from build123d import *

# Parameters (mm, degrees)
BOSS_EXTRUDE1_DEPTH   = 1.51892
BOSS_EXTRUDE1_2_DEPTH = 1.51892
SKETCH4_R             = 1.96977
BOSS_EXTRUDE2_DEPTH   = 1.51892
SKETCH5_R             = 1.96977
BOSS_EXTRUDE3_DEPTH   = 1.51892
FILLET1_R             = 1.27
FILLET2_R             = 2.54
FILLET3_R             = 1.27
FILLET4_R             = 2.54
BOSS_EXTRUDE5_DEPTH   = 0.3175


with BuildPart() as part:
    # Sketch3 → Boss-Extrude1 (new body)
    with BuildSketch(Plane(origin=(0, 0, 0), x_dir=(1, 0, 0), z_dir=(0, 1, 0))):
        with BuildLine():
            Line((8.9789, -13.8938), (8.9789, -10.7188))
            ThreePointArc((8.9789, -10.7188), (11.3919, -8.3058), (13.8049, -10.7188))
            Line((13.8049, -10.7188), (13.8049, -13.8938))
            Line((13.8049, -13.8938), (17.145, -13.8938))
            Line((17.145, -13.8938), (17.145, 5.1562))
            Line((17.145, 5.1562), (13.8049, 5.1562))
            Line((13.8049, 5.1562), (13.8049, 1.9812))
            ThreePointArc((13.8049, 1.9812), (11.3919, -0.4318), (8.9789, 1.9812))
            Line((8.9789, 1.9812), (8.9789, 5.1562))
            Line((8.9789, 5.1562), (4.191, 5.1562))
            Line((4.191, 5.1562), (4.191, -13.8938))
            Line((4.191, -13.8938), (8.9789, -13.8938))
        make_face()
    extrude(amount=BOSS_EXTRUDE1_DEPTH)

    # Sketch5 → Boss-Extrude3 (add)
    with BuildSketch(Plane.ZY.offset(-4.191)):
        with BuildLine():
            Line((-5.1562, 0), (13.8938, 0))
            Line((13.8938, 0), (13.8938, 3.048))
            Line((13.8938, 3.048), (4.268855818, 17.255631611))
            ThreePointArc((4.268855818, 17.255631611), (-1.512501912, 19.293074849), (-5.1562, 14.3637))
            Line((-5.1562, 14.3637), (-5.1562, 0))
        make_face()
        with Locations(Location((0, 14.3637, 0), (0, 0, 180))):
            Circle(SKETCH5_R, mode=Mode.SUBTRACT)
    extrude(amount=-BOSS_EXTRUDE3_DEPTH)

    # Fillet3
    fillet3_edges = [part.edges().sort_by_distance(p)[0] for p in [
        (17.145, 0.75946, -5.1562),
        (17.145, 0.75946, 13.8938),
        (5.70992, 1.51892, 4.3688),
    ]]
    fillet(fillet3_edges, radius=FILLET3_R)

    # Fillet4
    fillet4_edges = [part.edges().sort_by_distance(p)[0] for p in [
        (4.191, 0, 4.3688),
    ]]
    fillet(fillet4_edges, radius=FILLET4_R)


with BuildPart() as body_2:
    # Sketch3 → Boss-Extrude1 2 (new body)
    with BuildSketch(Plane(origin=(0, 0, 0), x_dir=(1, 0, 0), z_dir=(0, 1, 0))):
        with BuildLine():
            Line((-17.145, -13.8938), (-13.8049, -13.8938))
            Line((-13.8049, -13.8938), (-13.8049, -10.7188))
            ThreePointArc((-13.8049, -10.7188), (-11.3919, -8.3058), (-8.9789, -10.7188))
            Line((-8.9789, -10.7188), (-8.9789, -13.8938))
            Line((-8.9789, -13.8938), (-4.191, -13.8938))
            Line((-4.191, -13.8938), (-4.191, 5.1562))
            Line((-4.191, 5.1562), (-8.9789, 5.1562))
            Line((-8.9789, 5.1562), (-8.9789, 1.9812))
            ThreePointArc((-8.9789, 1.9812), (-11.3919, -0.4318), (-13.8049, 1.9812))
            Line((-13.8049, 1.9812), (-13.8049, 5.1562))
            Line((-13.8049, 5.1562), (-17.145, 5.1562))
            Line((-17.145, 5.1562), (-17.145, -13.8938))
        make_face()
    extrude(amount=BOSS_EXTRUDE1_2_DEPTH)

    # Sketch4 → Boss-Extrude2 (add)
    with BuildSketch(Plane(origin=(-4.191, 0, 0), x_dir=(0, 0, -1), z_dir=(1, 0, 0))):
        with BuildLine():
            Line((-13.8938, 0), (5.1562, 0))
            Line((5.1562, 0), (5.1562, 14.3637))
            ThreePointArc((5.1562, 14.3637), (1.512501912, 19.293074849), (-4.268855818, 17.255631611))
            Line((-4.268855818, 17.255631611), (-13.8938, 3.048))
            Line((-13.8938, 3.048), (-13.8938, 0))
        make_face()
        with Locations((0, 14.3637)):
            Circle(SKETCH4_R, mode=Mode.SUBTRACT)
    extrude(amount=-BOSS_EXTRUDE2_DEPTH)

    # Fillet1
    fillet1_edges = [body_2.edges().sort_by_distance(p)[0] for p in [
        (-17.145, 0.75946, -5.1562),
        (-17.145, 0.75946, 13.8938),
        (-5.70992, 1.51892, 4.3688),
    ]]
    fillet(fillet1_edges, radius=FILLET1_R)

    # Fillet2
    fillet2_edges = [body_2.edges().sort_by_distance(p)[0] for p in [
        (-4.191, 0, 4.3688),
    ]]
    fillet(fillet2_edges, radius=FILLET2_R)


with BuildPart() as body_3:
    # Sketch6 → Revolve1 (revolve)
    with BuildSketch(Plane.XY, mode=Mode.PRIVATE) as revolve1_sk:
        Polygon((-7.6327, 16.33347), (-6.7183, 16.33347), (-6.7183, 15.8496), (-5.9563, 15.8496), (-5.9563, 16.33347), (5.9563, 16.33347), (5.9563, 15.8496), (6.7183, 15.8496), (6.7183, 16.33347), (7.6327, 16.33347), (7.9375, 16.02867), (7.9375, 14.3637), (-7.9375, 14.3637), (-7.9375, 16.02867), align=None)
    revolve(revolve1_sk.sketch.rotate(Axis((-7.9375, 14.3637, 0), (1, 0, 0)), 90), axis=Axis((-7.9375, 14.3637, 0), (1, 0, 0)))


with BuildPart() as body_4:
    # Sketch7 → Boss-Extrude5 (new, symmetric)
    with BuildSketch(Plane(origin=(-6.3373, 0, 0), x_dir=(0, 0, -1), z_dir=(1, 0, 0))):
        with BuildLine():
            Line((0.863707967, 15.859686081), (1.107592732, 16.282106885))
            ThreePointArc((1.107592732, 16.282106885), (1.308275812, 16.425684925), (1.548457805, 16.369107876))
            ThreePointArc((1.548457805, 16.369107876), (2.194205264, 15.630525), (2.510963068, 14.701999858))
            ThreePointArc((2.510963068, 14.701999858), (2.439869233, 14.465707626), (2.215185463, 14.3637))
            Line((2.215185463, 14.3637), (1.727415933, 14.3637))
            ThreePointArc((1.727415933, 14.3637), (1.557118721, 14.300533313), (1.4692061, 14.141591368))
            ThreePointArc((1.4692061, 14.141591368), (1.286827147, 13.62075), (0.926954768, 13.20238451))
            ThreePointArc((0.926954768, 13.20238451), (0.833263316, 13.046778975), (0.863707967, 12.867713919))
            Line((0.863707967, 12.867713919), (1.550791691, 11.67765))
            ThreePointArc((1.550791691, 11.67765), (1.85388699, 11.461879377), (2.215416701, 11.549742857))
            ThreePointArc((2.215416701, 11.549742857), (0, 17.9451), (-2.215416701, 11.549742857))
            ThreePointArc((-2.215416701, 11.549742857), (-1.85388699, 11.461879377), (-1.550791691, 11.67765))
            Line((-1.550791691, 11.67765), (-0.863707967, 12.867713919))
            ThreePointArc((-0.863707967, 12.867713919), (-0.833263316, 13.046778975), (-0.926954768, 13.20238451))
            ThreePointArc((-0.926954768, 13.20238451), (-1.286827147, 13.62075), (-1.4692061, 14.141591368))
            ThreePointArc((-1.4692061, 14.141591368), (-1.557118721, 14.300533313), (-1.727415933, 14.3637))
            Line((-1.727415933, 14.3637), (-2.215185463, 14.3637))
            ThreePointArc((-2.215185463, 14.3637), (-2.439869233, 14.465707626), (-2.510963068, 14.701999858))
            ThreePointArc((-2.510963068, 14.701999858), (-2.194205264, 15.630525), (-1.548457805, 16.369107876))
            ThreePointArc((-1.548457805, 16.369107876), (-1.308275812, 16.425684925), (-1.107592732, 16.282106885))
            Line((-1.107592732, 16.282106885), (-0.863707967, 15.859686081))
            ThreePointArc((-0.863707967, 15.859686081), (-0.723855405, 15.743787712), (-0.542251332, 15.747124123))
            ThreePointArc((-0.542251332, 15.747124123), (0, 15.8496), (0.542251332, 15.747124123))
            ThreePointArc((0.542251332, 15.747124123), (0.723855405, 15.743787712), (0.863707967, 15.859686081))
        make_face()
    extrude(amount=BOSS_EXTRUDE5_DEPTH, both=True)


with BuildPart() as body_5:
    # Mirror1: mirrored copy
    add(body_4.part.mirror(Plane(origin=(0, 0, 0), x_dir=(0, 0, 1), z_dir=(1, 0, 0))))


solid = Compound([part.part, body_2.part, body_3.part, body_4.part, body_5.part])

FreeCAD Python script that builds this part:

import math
import FreeCAD as App
import Part
import Sketcher

V = App.Vector
Q = App.Units.Quantity


def edges_at(feature, points):
    """Names of the edges that pass closest to the given points."""
    edges = feature.Shape.Edges
    near = lambda p: min(range(len(edges)), key=lambda i: edges[i].distToShape(Part.Vertex(*p))[0])
    return sorted({f"Edge{near(p) + 1}" for p in points})


def add_polygon(sketch, points):
    """Adds a closed chain of lines whose ends are joined by coincident constraints."""
    first, n = sketch.GeometryCount, len(points)
    for a, b in zip(points, points[1:] + points[:1]):
        sketch.addGeometry(Part.LineSegment(App.Vector(*a, 0), App.Vector(*b, 0)), False)
    for i in range(n):
        sketch.addConstraint(Sketcher.Constraint("Coincident", first + i, 2, first + (i + 1) % n, 1))

doc = App.newDocument("Part")
body = doc.addObject("PartDesign::Body", "Body")

# Sketch on XZ plane
sketch1 = body.newObject("Sketcher::SketchObject", "Sketch")
sketch1.AttachmentSupport = (doc.getObject("XZ_Plane"), [""])
sketch1.MapMode = "FlatFace"
sketch1.addGeometry([
    Part.LineSegment(V(9, 13.9, 0), V(9, 10.7, 0)),  # 0
    Part.ArcOfCircle(Part.Circle(V(11.4, 10.7, 0), V(0, 0, 1), 2.4), math.radians(180), math.radians(360)),  # 1
    Part.LineSegment(V(13.8, 10.7, 0), V(13.8, 13.9, 0)),  # 2
    Part.LineSegment(V(13.8, 13.9, 0), V(17.1, 13.9, 0)),  # 3
    Part.LineSegment(V(17.1, 13.9, 0), V(17.1, -5.2, 0)),  # 4
    Part.LineSegment(V(17.1, -5.2, 0), V(13.8, -5.2, 0)),  # 5
    Part.LineSegment(V(13.8, -5.2, 0), V(13.8, -2, 0)),  # 6
    Part.ArcOfCircle(Part.Circle(V(11.4, -2, 0), V(0, 0, 1), 2.4), math.radians(0), math.radians(180)),  # 7
    Part.LineSegment(V(9, -2, 0), V(9, -5.2, 0)),  # 8
    Part.LineSegment(V(9, -5.2, 0), V(4.2, -5.2, 0)),  # 9
    Part.LineSegment(V(4.2, -5.2, 0), V(4.2, 13.9, 0)),  # 10
    Part.LineSegment(V(4.2, 13.9, 0), V(9, 13.9, 0)),  # 11
], False)
sketch1.addConstraint([
    Sketcher.Constraint("Tangent", 0, 2, 1, 1),
    Sketcher.Constraint("Tangent", 1, 2, 2, 1),
    Sketcher.Constraint("Coincident", 2, 2, 3, 1),
    Sketcher.Constraint("Coincident", 3, 2, 4, 1),
    Sketcher.Constraint("Coincident", 4, 2, 5, 1),
    Sketcher.Constraint("Coincident", 5, 2, 6, 1),
    Sketcher.Constraint("Tangent", 6, 2, 7, 1),
    Sketcher.Constraint("Tangent", 7, 2, 8, 1),
    Sketcher.Constraint("Coincident", 8, 2, 9, 1),
    Sketcher.Constraint("Coincident", 9, 2, 10, 1),
    Sketcher.Constraint("Coincident", 10, 2, 11, 1),
    Sketcher.Constraint("Coincident", 11, 2, 0, 1),
    Sketcher.Constraint("Vertical", 0),
    Sketcher.Constraint("Vertical", 2),
    Sketcher.Constraint("Horizontal", 3),
    Sketcher.Constraint("Vertical", 4),
    Sketcher.Constraint("Horizontal", 5),
    Sketcher.Constraint("Vertical", 6),
    Sketcher.Constraint("Vertical", 8),
    Sketcher.Constraint("Horizontal", 9),
    Sketcher.Constraint("Vertical", 10),
    Sketcher.Constraint("Horizontal", 11),
    Sketcher.Constraint("Equal", 1, 7),
    Sketcher.Constraint("Horizontal", 5, 2, 8, 2),
    Sketcher.Constraint("Horizontal", 3, 2, 10, 2),
    Sketcher.Constraint("Vertical", 1, 3, 7, 3),
    Sketcher.Constraint("Equal", 2, 6),
    Sketcher.Constraint("Radius", 1, Q("0.095 in")),
    Sketcher.Constraint("DistanceY", 4, 2, 4, 1, Q("0.75 in")),
    Sketcher.Constraint("DistanceY", 7, 3, 1, 3, Q("0.5 in")),
    Sketcher.Constraint("DistanceX", 10, 2, 3, 2, Q("0.51 in")),
    Sketcher.Constraint("DistanceX", 3, 1, 3, 2, Q("0.1315 in")),
    Sketcher.Constraint("DistanceY", -1, 1, 1, 3, Q("0.422 in")),
    Sketcher.Constraint("DistanceX", -1, 1, 3, 2, Q("0.675 in")),
])
pad1 = body.newObject("PartDesign::Pad", "Pad")
pad1.Profile = sketch1
pad1.Length = Q("0.0598 in")
pad1.Reversed = True

# Sketch on YZ plane
sketch2 = body.newObject("Sketcher::SketchObject", "Sketch001")
sketch2.AttachmentSupport = (doc.getObject("YZ_Plane"), [""])
sketch2.MapMode = "FlatFace"
sketch2.AttachmentOffset = App.Placement(V(0, 0, 0.165 * 25.4), App.Rotation())
sketch2.addGeometry([
    Part.LineSegment(V(0, -5.2, 0), V(0, 13.9, 0)),  # 0
    Part.LineSegment(V(0, 13.9, 0), V(3, 13.9, 0)),  # 1
    Part.LineSegment(V(3, 13.9, 0), V(17.3, 4.3, 0)),  # 2
    Part.ArcOfCircle(Part.Circle(V(14.4, 0, 0), V(0, 0, 1), 5.2), math.radians(-90), math.radians(56)),  # 3
    Part.LineSegment(V(14.4, -5.2, 0), V(0, -5.2, 0)),  # 4
    Part.Circle(V(14.4, 0, 0), V(0, 0, 1), 2),  # 5
], False)
sketch2.addConstraint([
    Sketcher.Constraint("Coincident", 0, 2, 1, 1),
    Sketcher.Constraint("Coincident", 1, 2, 2, 1),
    Sketcher.Constraint("Tangent", 2, 2, 3, 2),
    Sketcher.Constraint("Tangent", 3, 1, 4, 1),
    Sketcher.Constraint("Coincident", 4, 2, 0, 1),
    Sketcher.Constraint("Vertical", 0),
    Sketcher.Constraint("Horizontal", 1),
    Sketcher.Constraint("Horizontal", 4),
    Sketcher.Constraint("Coincident", 5, 3, 3, 3),
    Sketcher.Constraint("PointOnObject", 3, 3, -1),
    Sketcher.Constraint("PointOnObject", 0, 2, -2),
    Sketcher.Constraint("Radius", 3, Q("0.203 in")),
    Sketcher.Constraint("Diameter", 5, Q("0.1551 in")),
    Sketcher.Constraint("DistanceX", 1, 1, 1, 2, Q("0.12 in")),
    Sketcher.Constraint("DistanceY", 0, 1, 0, 2, Q("0.75 in")),
    Sketcher.Constraint("DistanceX", 4, 2, 4, 1, Q("0.5655 in")),
])
pad2 = body.newObject("PartDesign::Pad", "Pad001")
pad2.Profile = sketch2
pad2.Length = Q("0.0598 in")
doc.recompute()

fillet = body.newObject("PartDesign::Fillet", "Fillet")
fillet.Base = (pad2, edges_at(pad2, [(17.145, 0.759, -5.156), (17.145, 0.759, 13.894), (5.71, 1.519, 4.369)]))
fillet.Radius = Q("0.05 in")
doc.recompute()

fillet2 = body.newObject("PartDesign::Fillet", "Fillet001")
fillet2.Base = (fillet, edges_at(fillet, [(4.191, 0, 4.369)]))
fillet2.Radius = Q("0.1 in")
body2 = doc.addObject("PartDesign::Body", "Body001")

# Sketch on XZ plane
sketch3 = body2.newObject("Sketcher::SketchObject", "Sketch002")
sketch3.AttachmentSupport = (doc.getObject("XZ_Plane001"), [""])
sketch3.MapMode = "FlatFace"
sketch3.addGeometry([
    Part.LineSegment(V(-17.1, 13.9, 0), V(-13.8, 13.9, 0)),  # 0
    Part.LineSegment(V(-13.8, 13.9, 0), V(-13.8, 10.7, 0)),  # 1
    Part.ArcOfCircle(Part.Circle(V(-11.4, 10.7, 0), V(0, 0, 1), 2.4), math.radians(180), math.radians(360)),  # 2
    Part.LineSegment(V(-9, 10.7, 0), V(-9, 13.9, 0)),  # 3
    Part.LineSegment(V(-9, 13.9, 0), V(-4.2, 13.9, 0)),  # 4
    Part.LineSegment(V(-4.2, 13.9, 0), V(-4.2, -5.2, 0)),  # 5
    Part.LineSegment(V(-4.2, -5.2, 0), V(-9, -5.2, 0)),  # 6
    Part.LineSegment(V(-9, -5.2, 0), V(-9, -2, 0)),  # 7
    Part.ArcOfCircle(Part.Circle(V(-11.4, -2, 0), V(0, 0, 1), 2.4), math.radians(0), math.radians(180)),  # 8
    Part.LineSegment(V(-13.8, -2, 0), V(-13.8, -5.2, 0)),  # 9
    Part.LineSegment(V(-13.8, -5.2, 0), V(-17.1, -5.2, 0)),  # 10
    Part.LineSegment(V(-17.1, -5.2, 0), V(-17.1, 13.9, 0)),  # 11
], False)
sketch3.addConstraint([
    Sketcher.Constraint("Coincident", 0, 2, 1, 1),
    Sketcher.Constraint("Tangent", 1, 2, 2, 1),
    Sketcher.Constraint("Tangent", 2, 2, 3, 1),
    Sketcher.Constraint("Coincident", 3, 2, 4, 1),
    Sketcher.Constraint("Coincident", 4, 2, 5, 1),
    Sketcher.Constraint("Coincident", 5, 2, 6, 1),
    Sketcher.Constraint("Coincident", 6, 2, 7, 1),
    Sketcher.Constraint("Tangent", 7, 2, 8, 1),
    Sketcher.Constraint("Tangent", 8, 2, 9, 1),
    Sketcher.Constraint("Coincident", 9, 2, 10, 1),
    Sketcher.Constraint("Coincident", 10, 2, 11, 1),
    Sketcher.Constraint("Coincident", 11, 2, 0, 1),
    Sketcher.Constraint("Horizontal", 0),
    Sketcher.Constraint("Vertical", 1),
    Sketcher.Constraint("Vertical", 3),
    Sketcher.Constraint("Horizontal", 4),
    Sketcher.Constraint("Vertical", 5),
    Sketcher.Constraint("Horizontal", 6),
    Sketcher.Constraint("Vertical", 7),
    Sketcher.Constraint("Vertical", 9),
    Sketcher.Constraint("Horizontal", 10),
    Sketcher.Constraint("Vertical", 11),
    Sketcher.Constraint("Equal", 2, 8),
    Sketcher.Constraint("Horizontal", 0, 2, 3, 2),
    Sketcher.Constraint("Horizontal", 6, 2, 9, 2),
    Sketcher.Constraint("Vertical", 2, 3, 8, 3),
    Sketcher.Constraint("Equal", 3, 7),
    Sketcher.Constraint("Radius", 2, Q("0.095 in")),
    Sketcher.Constraint("DistanceY", 5, 2, 5, 1, Q("0.75 in")),
    Sketcher.Constraint("DistanceY", 8, 3, 2, 3, Q("0.5 in")),
    Sketcher.Constraint("DistanceX", 0, 1, 0, 2, Q("0.1315 in")),
    Sketcher.Constraint("DistanceX", 4, 1, 4, 2, Q("0.1885 in")),
    Sketcher.Constraint("DistanceY", -1, 1, 2, 3, Q("0.422 in")),
    Sketcher.Constraint("DistanceX", 4, 2, -1, 1, Q("0.165 in")),
])
pad3 = body2.newObject("PartDesign::Pad", "Pad002")
pad3.Profile = sketch3
pad3.Length = Q("0.0598 in")
pad3.Reversed = True

# Sketch on YZ plane
sketch4 = body2.newObject("Sketcher::SketchObject", "Sketch003")
sketch4.AttachmentSupport = (doc.getObject("YZ_Plane001"), [""])
sketch4.MapMode = "FlatFace"
sketch4.AttachmentOffset = App.Placement(V(0, 0, -0.165 * 25.4), App.Rotation())
sketch4.addGeometry([
    Part.LineSegment(V(0, 13.9, 0), V(0, -5.2, 0)),  # 0
    Part.LineSegment(V(0, -5.2, 0), V(14.4, -5.2, 0)),  # 1
    Part.ArcOfCircle(Part.Circle(V(14.4, 0, 0), V(0, 0, 1), 5.2), math.radians(-90), math.radians(56)),  # 2
    Part.LineSegment(V(17.3, 4.3, 0), V(3, 13.9, 0)),  # 3
    Part.LineSegment(V(3, 13.9, 0), V(0, 13.9, 0)),  # 4
    Part.Circle(V(14.4, 0, 0), V(0, 0, 1), 2),  # 5
], False)
sketch4.addConstraint([
    Sketcher.Constraint("Coincident", 0, 2, 1, 1),
    Sketcher.Constraint("Tangent", 1, 2, 2, 1),
    Sketcher.Constraint("Tangent", 2, 2, 3, 1),
    Sketcher.Constraint("Coincident", 3, 2, 4, 1),
    Sketcher.Constraint("Coincident", 4, 2, 0, 1),
    Sketcher.Constraint("Vertical", 0),
    Sketcher.Constraint("Horizontal", 1),
    Sketcher.Constraint("Horizontal", 4),
    Sketcher.Constraint("Coincident", 5, 3, 2, 3),
    Sketcher.Constraint("PointOnObject", 2, 3, -1),
    Sketcher.Constraint("PointOnObject", 0, 2, -2),
    Sketcher.Constraint("Radius", 2, Q("0.203 in")),
    Sketcher.Constraint("Diameter", 5, Q("0.1551 in")),
    Sketcher.Constraint("DistanceX", 4, 2, 4, 1, Q("0.12 in")),
    Sketcher.Constraint("DistanceY", 0, 2, 0, 1, Q("0.75 in")),
    Sketcher.Constraint("DistanceX", 1, 1, 1, 2, Q("0.5655 in")),
])
pad4 = body2.newObject("PartDesign::Pad", "Pad003")
pad4.Profile = sketch4
pad4.Length = Q("0.0598 in")
pad4.Reversed = True
doc.recompute()

fillet3 = body2.newObject("PartDesign::Fillet", "Fillet002")
fillet3.Base = (pad4, edges_at(pad4, [(-17.145, 0.759, -5.156), (-17.145, 0.759, 13.894), (-5.71, 1.519, 4.369)]))
fillet3.Radius = Q("0.05 in")
doc.recompute()

fillet4 = body2.newObject("PartDesign::Fillet", "Fillet003")
fillet4.Base = (fillet3, edges_at(fillet3, [(-4.191, 0, 4.369)]))
fillet4.Radius = Q("0.1 in")
body3 = doc.addObject("PartDesign::Body", "Body002")

# Sketch on XY plane
sketch5 = body3.newObject("Sketcher::SketchObject", "Sketch004")
sketch5.AttachmentSupport = (doc.getObject("XY_Plane002"), [""])
sketch5.MapMode = "FlatFace"
add_polygon(sketch5, [(-6.72, 16.33), (-7.63, 16.33), (-7.94, 16.03), (-7.94, 14.36), (7.94, 14.36), (7.94, 16.03), (7.63, 16.33), (6.72, 16.33), (6.72, 15.85), (5.96, 15.85), (5.96, 16.33), (-5.96, 16.33), (-5.96, 15.85), (-6.72, 15.85)])  # lines 0-13
sketch5.addGeometry(Part.LineSegment(V(-7.94, 14.36, 0), V(7.94, 14.36, 0)), True)  # axis
sketch5.addConstraint([
    Sketcher.Constraint("Horizontal", 0),
    Sketcher.Constraint("Vertical", 2),
    Sketcher.Constraint("Horizontal", 3),
    Sketcher.Constraint("Vertical", 4),
    Sketcher.Constraint("Horizontal", 6),
    Sketcher.Constraint("Vertical", 7),
    Sketcher.Constraint("Horizontal", 8),
    Sketcher.Constraint("Vertical", 9),
    Sketcher.Constraint("Horizontal", 10),
    Sketcher.Constraint("Vertical", 11),
    Sketcher.Constraint("Horizontal", 12),
    Sketcher.Constraint("Vertical", 13),
    Sketcher.Constraint("Horizontal", 14),
    Sketcher.Constraint("Coincident", 14, 1, 2, 2),
    Sketcher.Constraint("Symmetric", 1, 2, 4, 2, -2),
    Sketcher.Constraint("Symmetric", 0, 2, 5, 2, -2),
    Sketcher.Constraint("Symmetric", 8, 2, 11, 2, -2),
    Sketcher.Constraint("Perpendicular", 1, 5),
    Sketcher.Constraint("Horizontal", 6, 2, 9, 2),
    Sketcher.Constraint("Vertical", 4, 2, 14, 2),
    Sketcher.Constraint("Equal", 0, 6),
    Sketcher.Constraint("DistanceX", 8, 2, 8, 1, Q("0.03 in")),
    Sketcher.Constraint("DistanceX", 0, 2, 0, 1, Q("0.036 in")),
    Sketcher.Constraint("DistanceX", 3, 1, 3, 2, Q("0.625 in")),
    Sketcher.Constraint("DistanceX", 10, 2, 10, 1, Q("0.469 in")),
    Sketcher.Constraint("DistanceY", -1, 1, 7, 2, Q("0.624 in")),
    Sketcher.Constraint("DistanceY", -1, 1, 2, 2, Q("0.5655 in")),
    Sketcher.Constraint("DistanceY", 2, 2, 2, 1, 1.66497),
])
revolution = body3.newObject("PartDesign::Revolution", "Revolution")
revolution.Profile = sketch5
revolution.ReferenceAxis = (sketch5, ["Axis0"])
revolution.Angle = 360
body4 = doc.addObject("PartDesign::Body", "Body003")

# Sketch on YZ plane
sketch6 = body4.newObject("Sketcher::SketchObject", "Sketch005")
sketch6.AttachmentSupport = (doc.getObject("YZ_Plane003"), [""])
sketch6.MapMode = "FlatFace"
sketch6.AttachmentOffset = App.Placement(V(0, 0, -0.2495 * 25.4), App.Rotation())
sketch6.addGeometry([
    Part.LineSegment(V(15.86, -0.86, 0), V(16.28, -1.11, 0)),  # 0
    Part.ArcOfCircle(Part.Circle(V(16.13, -1.37, 0), V(0, 0, 1), 0.3), math.radians(-38), math.radians(60)),  # 1
    Part.ArcOfCircle(Part.Circle(V(14.36, 0, 0), V(0, 0, 1), 2.53), math.radians(-82), math.radians(-38)),  # 2
    Part.ArcOfCircle(Part.Circle(V(14.66, -2.22, 0), V(0, 0, 1), 0.3), math.radians(180), math.radians(278)),  # 3
    Part.LineSegment(V(14.36, -2.22, 0), V(14.36, -1.73, 0)),  # 4
    Part.ArcOfCircle(Part.Circle(V(14.1, -1.73, 0), V(0, 0, 1), 0.26), math.radians(0), math.radians(81)),  # 5
    Part.ArcOfCircle(Part.Circle(V(14.36, 0, 0), V(0, 0, 1), 1.49), math.radians(-141), math.radians(-99)),  # 6
    Part.ArcOfCircle(Part.Circle(V(13, -1.09, 0), V(0, 0, 1), 0.26), math.radians(39), math.radians(120)),  # 7
    Part.LineSegment(V(12.87, -0.86, 0), V(11.68, -1.55, 0)),  # 8
    Part.ArcOfCircle(Part.Circle(V(11.9, -1.94, 0), V(0, 0, 1), 0.45), math.radians(120), math.radians(218)),  # 9
    Part.ArcOfCircle(Part.Circle(V(14.36, 0, 0), V(0, 0, 1), 3.58), math.radians(-142), math.radians(142)),  # 10
    Part.ArcOfCircle(Part.Circle(V(11.9, 1.94, 0), V(0, 0, 1), 0.45), math.radians(142), math.radians(240)),  # 11
    Part.LineSegment(V(11.68, 1.55, 0), V(12.87, 0.86, 0)),  # 12
    Part.ArcOfCircle(Part.Circle(V(13, 1.09, 0), V(0, 0, 1), 0.26), math.radians(-120), math.radians(-39)),  # 13
    Part.ArcOfCircle(Part.Circle(V(14.36, 0, 0), V(0, 0, 1), 1.49), math.radians(99), math.radians(141)),  # 14
    Part.ArcOfCircle(Part.Circle(V(14.1, 1.73, 0), V(0, 0, 1), 0.26), math.radians(-81), math.radians(0)),  # 15
    Part.LineSegment(V(14.36, 1.73, 0), V(14.36, 2.22, 0)),  # 16
    Part.ArcOfCircle(Part.Circle(V(14.66, 2.22, 0), V(0, 0, 1), 0.3), math.radians(82), math.radians(180)),  # 17
    Part.ArcOfCircle(Part.Circle(V(14.36, 0, 0), V(0, 0, 1), 2.53), math.radians(38), math.radians(82)),  # 18
    Part.ArcOfCircle(Part.Circle(V(16.13, 1.37, 0), V(0, 0, 1), 0.3), math.radians(-60), math.radians(38)),  # 19
    Part.LineSegment(V(16.28, 1.11, 0), V(15.86, 0.86, 0)),  # 20
    Part.ArcOfCircle(Part.Circle(V(15.99, 0.64, 0), V(0, 0, 1), 0.26), math.radians(120), math.radians(201)),  # 21
    Part.ArcOfCircle(Part.Circle(V(14.36, 0, 0), V(0, 0, 1), 1.49), math.radians(-21), math.radians(21)),  # 22
    Part.ArcOfCircle(Part.Circle(V(15.99, -0.64, 0), V(0, 0, 1), 0.26), math.radians(159), math.radians(240)),  # 23
], False)
sketch6.addConstraint([
    Sketcher.Constraint("Tangent", 0, 2, 1, 2),
    Sketcher.Constraint("Tangent", 1, 1, 2, 2),
    Sketcher.Constraint("Tangent", 2, 1, 3, 2),
    Sketcher.Constraint("Tangent", 3, 1, 4, 1),
    Sketcher.Constraint("Tangent", 4, 2, 5, 1),
    Sketcher.Constraint("Tangent", 5, 2, 6, 2),
    Sketcher.Constraint("Tangent", 6, 1, 7, 1),
    Sketcher.Constraint("Tangent", 7, 2, 8, 1),
    Sketcher.Constraint("Tangent", 8, 2, 9, 1),
    Sketcher.Constraint("Tangent", 9, 2, 10, 1),
    Sketcher.Constraint("Tangent", 10, 2, 11, 1),
    Sketcher.Constraint("Tangent", 11, 2, 12, 1),
    Sketcher.Constraint("Tangent", 12, 2, 13, 1),
    Sketcher.Constraint("Tangent", 13, 2, 14, 2),
    Sketcher.Constraint("Tangent", 14, 1, 15, 1),
    Sketcher.Constraint("Tangent", 15, 2, 16, 1),
    Sketcher.Constraint("Tangent", 16, 2, 17, 2),
    Sketcher.Constraint("Tangent", 17, 1, 18, 2),
    Sketcher.Constraint("Tangent", 18, 1, 19, 2),
    Sketcher.Constraint("Tangent", 19, 1, 20, 1),
    Sketcher.Constraint("Tangent", 20, 2, 21, 1),
    Sketcher.Constraint("Tangent", 21, 2, 22, 2),
    Sketcher.Constraint("Tangent", 22, 1, 23, 1),
    Sketcher.Constraint("Tangent", 23, 2, 0, 1),
    Sketcher.Constraint("Vertical", 4),
    Sketcher.Constraint("Vertical", 16),
    Sketcher.Constraint("Coincident", 6, 3, 2, 3),
    Sketcher.Constraint("Coincident", 10, 3, 2, 3),
    Sketcher.Constraint("Coincident", 14, 3, 2, 3),
    Sketcher.Constraint("Coincident", 18, 3, 2, 3),
    Sketcher.Constraint("Coincident", 22, 3, 2, 3),
    Sketcher.Constraint("Equal", 1, 3),
    Sketcher.Constraint("Equal", 5, 7),
    Sketcher.Constraint("Equal", 9, 11),
    Sketcher.Constraint("Equal", 7, 13),
    Sketcher.Constraint("Equal", 6, 14),
    Sketcher.Constraint("Equal", 13, 15),
    Sketcher.Constraint("Equal", 3, 17),
    Sketcher.Constraint("Equal", 2, 18),
    Sketcher.Constraint("Equal", 17, 19),
    Sketcher.Constraint("Equal", 15, 21),
    Sketcher.Constraint("Equal", 14, 22),
    Sketcher.Constraint("Equal", 21, 23),
    Sketcher.Constraint("Symmetric", 9, 3, 11, 3, -1),
    Sketcher.Constraint("Symmetric", 0, 2, 19, 1, -1),
    Sketcher.Constraint("Parallel", 0, 12),
    Sketcher.Constraint("Parallel", 8, 20),
    Sketcher.Constraint("Horizontal", 12, 2, 20, 2),
    Sketcher.Constraint("Vertical", 5, 3, 15, 3),
    Sketcher.Constraint("Vertical", 22, 3, 3, 1),
    Sketcher.Constraint("Angle", 0, Q("-30 deg")),
    Sketcher.Constraint("Radius", 10, Q("0.141 in")),
    Sketcher.Constraint("Radius", 6, Q("0.0585 in")),
    Sketcher.Constraint("Radius", 1, 0.29845),
    Sketcher.Constraint("Radius", 2, 2.53365),
    Sketcher.Constraint("DistanceX", -1, 1, 2, 3, Q("0.5655 in")),
    Sketcher.Constraint("Radius", 5, 0.261144),
    Sketcher.Constraint("Radius", 9, 0.447675),
    Sketcher.Constraint("DistanceY", 23, 3, 21, 3, 1.275102),
])
pad5 = body4.newObject("PartDesign::Pad", "Pad004")
pad5.Profile = sketch6
pad5.Length = Q("0.025 in")
pad5.Midplane = True
body5 = doc.addObject("PartDesign::Body", "Body004")
doc.recompute()

mirroring = doc.addObject("Part::Mirroring", "Mirroring")
mirroring.Source = body4
mirroring.Base = V(0, 0, 0)
mirroring.Normal = V(1, 0, 0)
body5.BaseFeature = mirroring
doc.recompute()
mirroring.Visibility = False

doc.recompute()
